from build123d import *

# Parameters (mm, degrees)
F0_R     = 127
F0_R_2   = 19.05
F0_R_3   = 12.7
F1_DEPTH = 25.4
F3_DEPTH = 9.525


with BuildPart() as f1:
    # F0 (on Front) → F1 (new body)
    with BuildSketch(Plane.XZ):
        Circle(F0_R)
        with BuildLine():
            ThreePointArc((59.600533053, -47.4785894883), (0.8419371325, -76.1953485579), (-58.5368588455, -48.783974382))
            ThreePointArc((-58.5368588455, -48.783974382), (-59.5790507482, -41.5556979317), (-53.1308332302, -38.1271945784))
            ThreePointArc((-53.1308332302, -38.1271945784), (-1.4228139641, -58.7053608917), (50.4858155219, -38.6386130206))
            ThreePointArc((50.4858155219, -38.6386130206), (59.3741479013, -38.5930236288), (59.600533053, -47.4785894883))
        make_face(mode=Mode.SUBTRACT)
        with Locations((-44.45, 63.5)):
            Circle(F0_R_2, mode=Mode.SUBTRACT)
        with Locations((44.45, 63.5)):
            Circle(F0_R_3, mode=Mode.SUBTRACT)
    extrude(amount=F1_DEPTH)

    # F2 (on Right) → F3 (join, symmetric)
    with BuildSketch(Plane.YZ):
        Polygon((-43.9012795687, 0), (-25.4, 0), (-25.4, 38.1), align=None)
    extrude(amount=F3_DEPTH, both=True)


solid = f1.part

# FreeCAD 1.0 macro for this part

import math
import FreeCAD as App
import Part
import Sketcher
from FreeCAD import Vector
Q = App.Units.Quantity


def add_polygon(sketch, points):
    """Adds a closed chain of lines whose ends are joined by coincident constraints."""
    first, n = sketch.GeometryCount, len(points)
    for a, b in zip(points, points[1:] + points[:1]):
        sketch.addGeometry(Part.LineSegment(App.Vector(*a, 0), App.Vector(*b, 0)), False)
    for i in range(n):
        sketch.addConstraint(Sketcher.Constraint("Coincident", first + i, 2, first + (i + 1) % n, 1))

doc = App.newDocument("Part")
body = doc.addObject("PartDesign::Body", "Body")

sketch1 = body.newObject("Sketcher::SketchObject", "Sketch")
sketch1.AttachmentSupport = (doc.getObject("XZ_Plane"), [""])
sketch1.MapMode = "FlatFace"
sketch1.addGeometry([
    Part.Circle(Vector(0, 0, 0), Vector(0, 0, 1), 127),
    Part.ArcOfCircle(Part.Circle(Vector(54.953245, -43.151326, 0), Vector(0, 0, 1), 6.35), math.radians(-42.957751), math.radians(134.711083)),
    Part.ArcOfCircle(Part.Circle(Vector(0, 0, 0), Vector(0, 0, 1), 76.2), math.radians(-140.192547), math.radians(-38.541301)),
    Part.ArcOfCircle(Part.Circle(Vector(-53.916036, -44.428461, 0), Vector(0, 0, 1), 6.35), math.radians(82.896966), math.radians(223.30703)),
    Part.ArcOfCircle(Part.Circle(Vector(-1.04672, 17.493711, 0), Vector(0, 0, 1), 76.2), math.radians(-133.11921), math.radians(-47.446372)),
    Part.Circle(Vector(-44.45, 63.5, 0), Vector(0, 0, 1), 19.05),
    Part.Circle(Vector(44.45, 63.5, 0), Vector(0, 0, 1), 12.7),
], False)
sketch1.addConstraint([
    Sketcher.Constraint("Coincident", 1, 1, 2, 2),
    Sketcher.Constraint("Coincident", 2, 1, 3, 2),
    Sketcher.Constraint("Coincident", 3, 1, 4, 1),
    Sketcher.Constraint("Coincident", 4, 2, 1, 2),
    Sketcher.Constraint("Coincident", 0, 3, -1, 1),
    Sketcher.Constraint("Coincident", 2, 3, -1, 1),
    Sketcher.Constraint("Equal", 1, 3),
    Sketcher.Constraint("Equal", 2, 4),
    Sketcher.Constraint("Symmetric", 5, 3, 6, 3, -2),
    Sketcher.Constraint("Diameter", 0, Q("10 in")),
    Sketcher.Constraint("Diameter", 6, Q("1 in")),
    Sketcher.Constraint("Radius", 2, Q("3 in")),
    Sketcher.Constraint("Diameter", 5, Q("1.5 in")),
    Sketcher.Constraint("Radius", 1, Q("0.25 in")),
    Sketcher.Constraint("DistanceY", -1, 1, 5, 3, Q("2.5 in")),
    Sketcher.Constraint("DistanceX", 5, 3, 6, 3, Q("3.5 in")),
    Sketcher.Constraint("DistanceY", 1, 3, 4, 3, Q("2.3875999 in")),
    Sketcher.Constraint("DistanceY", 1, 1, 4, 3, 64.9723),
    Sketcher.Constraint("DistanceY", 3, 3, -1, 1, 44.428461),
    Sketcher.Constraint("DistanceX", 4, 3, -1, 1, 1.04672),
    Sketcher.Constraint("DistanceY", -1, 1, 4, 3, 17.493711),
    Sketcher.Constraint("DistanceX", 2, 1, -1, 1, 58.536859),
])
pad1 = body.newObject("PartDesign::Pad", "Pad")
pad1.Profile = sketch1
pad1.Length = Q("1 in")

sketch2 = body.newObject("Sketcher::SketchObject", "Sketch001")
sketch2.AttachmentSupport = (doc.getObject("YZ_Plane"), [""])
sketch2.MapMode = "FlatFace"
add_polygon(sketch2, [(-43.90128, 0), (-25.4, 0), (-25.4, 38.1)])
sketch2.addConstraint([
    Sketcher.Constraint("Horizontal", 0),
    Sketcher.Constraint("Vertical", 1),
    Sketcher.Constraint("PointOnObject", 0, 2, -1),
    Sketcher.Constraint("DistanceY", 1, 1, 1, 2, Q("1.5 in")),
    Sketcher.Constraint("DistanceX", 0, 2, -1, 1, Q("1 in")),
    Sketcher.Constraint("DistanceX", 0, 1, 0, 2, 18.50128),
])
pad2 = body.newObject("PartDesign::Pad", "Pad001")
pad2.Profile = sketch2
pad2.Length = Q("0.75 in")
pad2.Midplane = True

doc.recompute()
